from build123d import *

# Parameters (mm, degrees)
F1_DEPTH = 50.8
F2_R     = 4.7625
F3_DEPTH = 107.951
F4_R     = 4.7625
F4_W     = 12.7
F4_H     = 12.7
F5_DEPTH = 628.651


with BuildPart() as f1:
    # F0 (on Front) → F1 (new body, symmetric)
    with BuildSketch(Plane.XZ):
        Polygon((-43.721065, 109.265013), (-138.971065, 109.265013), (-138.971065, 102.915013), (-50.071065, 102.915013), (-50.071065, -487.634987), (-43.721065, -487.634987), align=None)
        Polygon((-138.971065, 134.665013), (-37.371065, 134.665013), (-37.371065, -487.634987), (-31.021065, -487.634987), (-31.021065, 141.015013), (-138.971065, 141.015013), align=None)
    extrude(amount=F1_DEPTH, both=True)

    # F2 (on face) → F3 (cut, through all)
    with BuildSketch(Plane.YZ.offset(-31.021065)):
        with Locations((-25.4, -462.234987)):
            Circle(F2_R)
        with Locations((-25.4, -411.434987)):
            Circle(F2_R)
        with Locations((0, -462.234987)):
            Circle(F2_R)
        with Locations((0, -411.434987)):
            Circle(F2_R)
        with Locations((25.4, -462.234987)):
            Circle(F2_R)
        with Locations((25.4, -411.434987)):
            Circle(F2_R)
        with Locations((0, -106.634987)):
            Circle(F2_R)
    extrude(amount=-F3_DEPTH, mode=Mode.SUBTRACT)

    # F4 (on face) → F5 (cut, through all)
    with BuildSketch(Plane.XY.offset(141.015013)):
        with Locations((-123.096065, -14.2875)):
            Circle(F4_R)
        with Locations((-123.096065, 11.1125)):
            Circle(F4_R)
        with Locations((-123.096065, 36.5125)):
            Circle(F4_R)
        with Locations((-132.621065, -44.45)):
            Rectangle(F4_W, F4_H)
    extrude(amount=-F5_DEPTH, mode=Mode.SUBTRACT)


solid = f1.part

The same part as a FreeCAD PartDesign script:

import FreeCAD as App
import Part
import Sketcher

V = App.Vector
Q = App.Units.Quantity


def add_polygon(sketch, points):
    """Adds a closed chain of lines whose ends are joined by coincident constraints."""
    first, n = sketch.GeometryCount, len(points)
    for a, b in zip(points, points[1:] + points[:1]):
        sketch.addGeometry(Part.LineSegment(App.Vector(*a, 0), App.Vector(*b, 0)), False)
    for i in range(n):
        sketch.addConstraint(Sketcher.Constraint("Coincident", first + i, 2, first + (i + 1) % n, 1))

doc = App.newDocument("Part")
params = doc.addObject("Spreadsheet::Sheet", "Params")
for row, (alias, value) in enumerate([
    ("sketch1_width", "4 in"),
    ("sketch1_width2", "3.5 in"),
    ("sketch1_height", "23.5 in"),
    ("sketch1_height2", "24.5 in"),
    ("sketch1_width3", "3.75 in"),
    ("pad1_length", "4 in"),
    ("sketch2_diameter", "0.375 in"),
    ("sketch3_diameter", "0.375 in"),
    ("sketch3_width", "0.5 in"),
], start=1):
    params.set(f"A{row}", alias)
    params.set(f"B{row}", "=" + value)
    params.setAlias(f"B{row}", alias)

body = doc.addObject("PartDesign::Body", "Body")
body.AllowCompound = True

# Sketch on XZ plane
sketch1 = body.newObject("Sketcher::SketchObject", "Sketch")
sketch1.AttachmentSupport = (doc.getObject("XZ_Plane"), [""])
sketch1.MapMode = "FlatFace"
add_polygon(sketch1, [(-43.721065, 109.265013), (-138.971065, 109.265013), (-138.971065, 102.915013), (-50.071065, 102.915013), (-50.071065, -487.634987), (-43.721065, -487.634987)])  # lines 0-5
add_polygon(sketch1, [(-138.971065, 134.665013), (-37.371065, 134.665013), (-37.371065, -487.634987), (-31.021065, -487.634987), (-31.021065, 141.015013), (-138.971065, 141.015013)])  # lines 6-11
sketch1.addConstraint([
    Sketcher.Constraint("Horizontal", 0),
    Sketcher.Constraint("Vertical", 1),
    Sketcher.Constraint("Horizontal", 2),
    Sketcher.Constraint("Vertical", 3),
    Sketcher.Constraint("Horizontal", 4),
    Sketcher.Constraint("Vertical", 5),
    Sketcher.Constraint("Horizontal", 6),
    Sketcher.Constraint("Vertical", 7),
    Sketcher.Constraint("Horizontal", 8),
    Sketcher.Constraint("Vertical", 9),
    Sketcher.Constraint("Horizontal", 10),
    Sketcher.Constraint("Vertical", 11),
    Sketcher.Constraint("Horizontal", 4, 2, 7, 2),
    Sketcher.Constraint("Vertical", 1, 2, 10, 2),
    Sketcher.Constraint("Equal", 4, 8),
    Sketcher.Constraint("Equal", 8, 1),
    Sketcher.Constraint("Equal", 1, 11),
    Sketcher.Constraint("DistanceX", 6, 1, 6, 2, Q("4 in")),
    Sketcher.Constraint("DistanceX", 2, 1, 2, 2, Q("3.5 in")),
    Sketcher.Constraint("DistanceY", 5, 1, 5, 2, Q("23.5 in")),
    Sketcher.Constraint("DistanceY", 7, 2, 7, 1, Q("24.5 in")),
    Sketcher.Constraint("DistanceX", 0, 2, 0, 1, Q("3.75 in")),
    Sketcher.Constraint("DistanceX", 0, 2, -1, 1, Q("138.971065 mm")),
    Sketcher.Constraint("DistanceY", -1, 1, 0, 2, Q("109.265013 mm")),
])
sketch1.setExpression("Constraints[29]", "Params.sketch1_width")
sketch1.setExpression("Constraints[30]", "Params.sketch1_width2")
sketch1.setExpression("Constraints[31]", "Params.sketch1_height")
sketch1.setExpression("Constraints[32]", "Params.sketch1_height2")
sketch1.setExpression("Constraints[33]", "Params.sketch1_width3")
pad1 = body.newObject("PartDesign::Pad", "Pad")
pad1.Profile = sketch1
pad1.setExpression("Length", "Params.pad1_length")
pad1.Midplane = True

# Sketch on YZ plane
sketch2 = body.newObject("Sketcher::SketchObject", "Sketch001")
sketch2.AttachmentSupport = (doc.getObject("YZ_Plane"), [""])
sketch2.MapMode = "FlatFace"
sketch2.AttachmentOffset = App.Placement(V(0, 0, -31.021065), App.Rotation())
sketch2.addGeometry([
    Part.Circle(V(-25.4, -462.234987, 0), V(0, 0, 1), 4.7625),  # 0
    Part.Circle(V(-25.4, -411.434987, 0), V(0, 0, 1), 4.7625),  # 1
    Part.Circle(V(0, -462.234987, 0), V(0, 0, 1), 4.7625),  # 2
    Part.Circle(V(0, -411.434987, 0), V(0, 0, 1), 4.7625),  # 3
    Part.Circle(V(25.4, -462.234987, 0), V(0, 0, 1), 4.7625),  # 4
    Part.Circle(V(25.4, -411.434987, 0), V(0, 0, 1), 4.7625),  # 5
    Part.Circle(V(0, -106.634987, 0), V(0, 0, 1), 4.7625),  # 6
], False)
sketch2.addConstraint([
    Sketcher.Constraint("Equal", 0, 1),
    Sketcher.Constraint("Equal", 1, 2),
    Sketcher.Constraint("Equal", 2, 3),
    Sketcher.Constraint("Equal", 3, 4),
    Sketcher.Constraint("Equal", 4, 5),
    Sketcher.Constraint("Equal", 5, 6),
    Sketcher.Constraint("Symmetric", 0, 3, 4, 3, -2),
    Sketcher.Constraint("Symmetric", 1, 3, 5, 3, -2),
    Sketcher.Constraint("PointOnObject", 2, 3, -2),
    Sketcher.Constraint("PointOnObject", 3, 3, -2),
    Sketcher.Constraint("PointOnObject", 6, 3, -2),
    Sketcher.Constraint("Horizontal", 0, 3, 2, 3),
    Sketcher.Constraint("Horizontal", 1, 3, 3, 3),
    Sketcher.Constraint("Vertical", 0, 3, 1, 3),
    Sketcher.Constraint("Diameter", 0, Q("0.375 in")),
    Sketcher.Constraint("DistanceX", 0, 3, -1, 1, Q("1 in")),
    Sketcher.Constraint("DistanceY", 0, 3, 1, 3, Q("2 in")),
    Sketcher.Constraint("DistanceY", 3, 3, 6, 3, Q("12 in")),
    Sketcher.Constraint("DistanceY", 0, 3, -1, 1, Q("462.234987 mm")),
])
sketch2.setExpression("Constraints[14]", "Params.sketch2_diameter")
pocket1 = body.newObject("PartDesign::Pocket", "Pocket")
pocket1.Profile = sketch2
pocket1.Type = "ThroughAll"

# Sketch on XY plane
sketch3 = body.newObject("Sketcher::SketchObject", "Sketch002")
sketch3.AttachmentSupport = (doc.getObject("XY_Plane"), [""])
sketch3.MapMode = "FlatFace"
sketch3.AttachmentOffset = App.Placement(V(0, 0, 141.015013), App.Rotation())
sketch3.addGeometry(Part.Circle(V(-123.096065, -14.2875, 0), V(0, 0, 1), 4.7625), False)  # 0
sketch3.addGeometry(Part.Circle(V(-123.096065, 11.1125, 0), V(0, 0, 1), 4.7625), False)  # 1
sketch3.addGeometry(Part.Circle(V(-123.096065, 36.5125, 0), V(0, 0, 1), 4.7625), False)  # 2
add_polygon(sketch3, [(-138.971065, -38.1), (-138.971065, -50.8), (-126.271065, -50.8), (-126.271065, -38.1)])  # lines 3-6
sketch3.addConstraint([
    Sketcher.Constraint("Vertical", 3),
    Sketcher.Constraint("Horizontal", 4),
    Sketcher.Constraint("Vertical", 5),
    Sketcher.Constraint("Horizontal", 6),
    Sketcher.Constraint("Equal", 0, 1),
    Sketcher.Constraint("Equal", 1, 2),
    Sketcher.Constraint("Vertical", 0, 3, 1, 3),
    Sketcher.Constraint("Vertical", 1, 3, 2, 3),
    Sketcher.Constraint("Equal", 6, 3),
    Sketcher.Constraint("Diameter", 0, Q("0.375 in")),
    Sketcher.Constraint("DistanceX", 4, 1, 4, 2, Q("0.5 in")),
    Sketcher.Constraint("DistanceY", 3, 2, -1, 1, Q("2 in")),
    Sketcher.Constraint("DistanceY", 0, 3, 1, 3, Q("1 in")),
    Sketcher.Constraint("DistanceY", 1, 3, 2, 3, Q("1 in")),
    Sketcher.Constraint("DistanceY", 0, 3, -1, 1, Q("0.5625 in")),
    Sketcher.Constraint("DistanceX", 3, 2, 0, 3, Q("0.625 in")),
    Sketcher.Constraint("DistanceX", 0, 3, -1, 1, Q("123.096065 mm")),
])
sketch3.setExpression("Constraints[13]", "Params.sketch3_diameter")
sketch3.setExpression("Constraints[14]", "Params.sketch3_width")
pocket2 = body.newObject("PartDesign::Pocket", "Pocket001")
pocket2.Profile = sketch3
pocket2.Type = "ThroughAll"

doc.recompute()
